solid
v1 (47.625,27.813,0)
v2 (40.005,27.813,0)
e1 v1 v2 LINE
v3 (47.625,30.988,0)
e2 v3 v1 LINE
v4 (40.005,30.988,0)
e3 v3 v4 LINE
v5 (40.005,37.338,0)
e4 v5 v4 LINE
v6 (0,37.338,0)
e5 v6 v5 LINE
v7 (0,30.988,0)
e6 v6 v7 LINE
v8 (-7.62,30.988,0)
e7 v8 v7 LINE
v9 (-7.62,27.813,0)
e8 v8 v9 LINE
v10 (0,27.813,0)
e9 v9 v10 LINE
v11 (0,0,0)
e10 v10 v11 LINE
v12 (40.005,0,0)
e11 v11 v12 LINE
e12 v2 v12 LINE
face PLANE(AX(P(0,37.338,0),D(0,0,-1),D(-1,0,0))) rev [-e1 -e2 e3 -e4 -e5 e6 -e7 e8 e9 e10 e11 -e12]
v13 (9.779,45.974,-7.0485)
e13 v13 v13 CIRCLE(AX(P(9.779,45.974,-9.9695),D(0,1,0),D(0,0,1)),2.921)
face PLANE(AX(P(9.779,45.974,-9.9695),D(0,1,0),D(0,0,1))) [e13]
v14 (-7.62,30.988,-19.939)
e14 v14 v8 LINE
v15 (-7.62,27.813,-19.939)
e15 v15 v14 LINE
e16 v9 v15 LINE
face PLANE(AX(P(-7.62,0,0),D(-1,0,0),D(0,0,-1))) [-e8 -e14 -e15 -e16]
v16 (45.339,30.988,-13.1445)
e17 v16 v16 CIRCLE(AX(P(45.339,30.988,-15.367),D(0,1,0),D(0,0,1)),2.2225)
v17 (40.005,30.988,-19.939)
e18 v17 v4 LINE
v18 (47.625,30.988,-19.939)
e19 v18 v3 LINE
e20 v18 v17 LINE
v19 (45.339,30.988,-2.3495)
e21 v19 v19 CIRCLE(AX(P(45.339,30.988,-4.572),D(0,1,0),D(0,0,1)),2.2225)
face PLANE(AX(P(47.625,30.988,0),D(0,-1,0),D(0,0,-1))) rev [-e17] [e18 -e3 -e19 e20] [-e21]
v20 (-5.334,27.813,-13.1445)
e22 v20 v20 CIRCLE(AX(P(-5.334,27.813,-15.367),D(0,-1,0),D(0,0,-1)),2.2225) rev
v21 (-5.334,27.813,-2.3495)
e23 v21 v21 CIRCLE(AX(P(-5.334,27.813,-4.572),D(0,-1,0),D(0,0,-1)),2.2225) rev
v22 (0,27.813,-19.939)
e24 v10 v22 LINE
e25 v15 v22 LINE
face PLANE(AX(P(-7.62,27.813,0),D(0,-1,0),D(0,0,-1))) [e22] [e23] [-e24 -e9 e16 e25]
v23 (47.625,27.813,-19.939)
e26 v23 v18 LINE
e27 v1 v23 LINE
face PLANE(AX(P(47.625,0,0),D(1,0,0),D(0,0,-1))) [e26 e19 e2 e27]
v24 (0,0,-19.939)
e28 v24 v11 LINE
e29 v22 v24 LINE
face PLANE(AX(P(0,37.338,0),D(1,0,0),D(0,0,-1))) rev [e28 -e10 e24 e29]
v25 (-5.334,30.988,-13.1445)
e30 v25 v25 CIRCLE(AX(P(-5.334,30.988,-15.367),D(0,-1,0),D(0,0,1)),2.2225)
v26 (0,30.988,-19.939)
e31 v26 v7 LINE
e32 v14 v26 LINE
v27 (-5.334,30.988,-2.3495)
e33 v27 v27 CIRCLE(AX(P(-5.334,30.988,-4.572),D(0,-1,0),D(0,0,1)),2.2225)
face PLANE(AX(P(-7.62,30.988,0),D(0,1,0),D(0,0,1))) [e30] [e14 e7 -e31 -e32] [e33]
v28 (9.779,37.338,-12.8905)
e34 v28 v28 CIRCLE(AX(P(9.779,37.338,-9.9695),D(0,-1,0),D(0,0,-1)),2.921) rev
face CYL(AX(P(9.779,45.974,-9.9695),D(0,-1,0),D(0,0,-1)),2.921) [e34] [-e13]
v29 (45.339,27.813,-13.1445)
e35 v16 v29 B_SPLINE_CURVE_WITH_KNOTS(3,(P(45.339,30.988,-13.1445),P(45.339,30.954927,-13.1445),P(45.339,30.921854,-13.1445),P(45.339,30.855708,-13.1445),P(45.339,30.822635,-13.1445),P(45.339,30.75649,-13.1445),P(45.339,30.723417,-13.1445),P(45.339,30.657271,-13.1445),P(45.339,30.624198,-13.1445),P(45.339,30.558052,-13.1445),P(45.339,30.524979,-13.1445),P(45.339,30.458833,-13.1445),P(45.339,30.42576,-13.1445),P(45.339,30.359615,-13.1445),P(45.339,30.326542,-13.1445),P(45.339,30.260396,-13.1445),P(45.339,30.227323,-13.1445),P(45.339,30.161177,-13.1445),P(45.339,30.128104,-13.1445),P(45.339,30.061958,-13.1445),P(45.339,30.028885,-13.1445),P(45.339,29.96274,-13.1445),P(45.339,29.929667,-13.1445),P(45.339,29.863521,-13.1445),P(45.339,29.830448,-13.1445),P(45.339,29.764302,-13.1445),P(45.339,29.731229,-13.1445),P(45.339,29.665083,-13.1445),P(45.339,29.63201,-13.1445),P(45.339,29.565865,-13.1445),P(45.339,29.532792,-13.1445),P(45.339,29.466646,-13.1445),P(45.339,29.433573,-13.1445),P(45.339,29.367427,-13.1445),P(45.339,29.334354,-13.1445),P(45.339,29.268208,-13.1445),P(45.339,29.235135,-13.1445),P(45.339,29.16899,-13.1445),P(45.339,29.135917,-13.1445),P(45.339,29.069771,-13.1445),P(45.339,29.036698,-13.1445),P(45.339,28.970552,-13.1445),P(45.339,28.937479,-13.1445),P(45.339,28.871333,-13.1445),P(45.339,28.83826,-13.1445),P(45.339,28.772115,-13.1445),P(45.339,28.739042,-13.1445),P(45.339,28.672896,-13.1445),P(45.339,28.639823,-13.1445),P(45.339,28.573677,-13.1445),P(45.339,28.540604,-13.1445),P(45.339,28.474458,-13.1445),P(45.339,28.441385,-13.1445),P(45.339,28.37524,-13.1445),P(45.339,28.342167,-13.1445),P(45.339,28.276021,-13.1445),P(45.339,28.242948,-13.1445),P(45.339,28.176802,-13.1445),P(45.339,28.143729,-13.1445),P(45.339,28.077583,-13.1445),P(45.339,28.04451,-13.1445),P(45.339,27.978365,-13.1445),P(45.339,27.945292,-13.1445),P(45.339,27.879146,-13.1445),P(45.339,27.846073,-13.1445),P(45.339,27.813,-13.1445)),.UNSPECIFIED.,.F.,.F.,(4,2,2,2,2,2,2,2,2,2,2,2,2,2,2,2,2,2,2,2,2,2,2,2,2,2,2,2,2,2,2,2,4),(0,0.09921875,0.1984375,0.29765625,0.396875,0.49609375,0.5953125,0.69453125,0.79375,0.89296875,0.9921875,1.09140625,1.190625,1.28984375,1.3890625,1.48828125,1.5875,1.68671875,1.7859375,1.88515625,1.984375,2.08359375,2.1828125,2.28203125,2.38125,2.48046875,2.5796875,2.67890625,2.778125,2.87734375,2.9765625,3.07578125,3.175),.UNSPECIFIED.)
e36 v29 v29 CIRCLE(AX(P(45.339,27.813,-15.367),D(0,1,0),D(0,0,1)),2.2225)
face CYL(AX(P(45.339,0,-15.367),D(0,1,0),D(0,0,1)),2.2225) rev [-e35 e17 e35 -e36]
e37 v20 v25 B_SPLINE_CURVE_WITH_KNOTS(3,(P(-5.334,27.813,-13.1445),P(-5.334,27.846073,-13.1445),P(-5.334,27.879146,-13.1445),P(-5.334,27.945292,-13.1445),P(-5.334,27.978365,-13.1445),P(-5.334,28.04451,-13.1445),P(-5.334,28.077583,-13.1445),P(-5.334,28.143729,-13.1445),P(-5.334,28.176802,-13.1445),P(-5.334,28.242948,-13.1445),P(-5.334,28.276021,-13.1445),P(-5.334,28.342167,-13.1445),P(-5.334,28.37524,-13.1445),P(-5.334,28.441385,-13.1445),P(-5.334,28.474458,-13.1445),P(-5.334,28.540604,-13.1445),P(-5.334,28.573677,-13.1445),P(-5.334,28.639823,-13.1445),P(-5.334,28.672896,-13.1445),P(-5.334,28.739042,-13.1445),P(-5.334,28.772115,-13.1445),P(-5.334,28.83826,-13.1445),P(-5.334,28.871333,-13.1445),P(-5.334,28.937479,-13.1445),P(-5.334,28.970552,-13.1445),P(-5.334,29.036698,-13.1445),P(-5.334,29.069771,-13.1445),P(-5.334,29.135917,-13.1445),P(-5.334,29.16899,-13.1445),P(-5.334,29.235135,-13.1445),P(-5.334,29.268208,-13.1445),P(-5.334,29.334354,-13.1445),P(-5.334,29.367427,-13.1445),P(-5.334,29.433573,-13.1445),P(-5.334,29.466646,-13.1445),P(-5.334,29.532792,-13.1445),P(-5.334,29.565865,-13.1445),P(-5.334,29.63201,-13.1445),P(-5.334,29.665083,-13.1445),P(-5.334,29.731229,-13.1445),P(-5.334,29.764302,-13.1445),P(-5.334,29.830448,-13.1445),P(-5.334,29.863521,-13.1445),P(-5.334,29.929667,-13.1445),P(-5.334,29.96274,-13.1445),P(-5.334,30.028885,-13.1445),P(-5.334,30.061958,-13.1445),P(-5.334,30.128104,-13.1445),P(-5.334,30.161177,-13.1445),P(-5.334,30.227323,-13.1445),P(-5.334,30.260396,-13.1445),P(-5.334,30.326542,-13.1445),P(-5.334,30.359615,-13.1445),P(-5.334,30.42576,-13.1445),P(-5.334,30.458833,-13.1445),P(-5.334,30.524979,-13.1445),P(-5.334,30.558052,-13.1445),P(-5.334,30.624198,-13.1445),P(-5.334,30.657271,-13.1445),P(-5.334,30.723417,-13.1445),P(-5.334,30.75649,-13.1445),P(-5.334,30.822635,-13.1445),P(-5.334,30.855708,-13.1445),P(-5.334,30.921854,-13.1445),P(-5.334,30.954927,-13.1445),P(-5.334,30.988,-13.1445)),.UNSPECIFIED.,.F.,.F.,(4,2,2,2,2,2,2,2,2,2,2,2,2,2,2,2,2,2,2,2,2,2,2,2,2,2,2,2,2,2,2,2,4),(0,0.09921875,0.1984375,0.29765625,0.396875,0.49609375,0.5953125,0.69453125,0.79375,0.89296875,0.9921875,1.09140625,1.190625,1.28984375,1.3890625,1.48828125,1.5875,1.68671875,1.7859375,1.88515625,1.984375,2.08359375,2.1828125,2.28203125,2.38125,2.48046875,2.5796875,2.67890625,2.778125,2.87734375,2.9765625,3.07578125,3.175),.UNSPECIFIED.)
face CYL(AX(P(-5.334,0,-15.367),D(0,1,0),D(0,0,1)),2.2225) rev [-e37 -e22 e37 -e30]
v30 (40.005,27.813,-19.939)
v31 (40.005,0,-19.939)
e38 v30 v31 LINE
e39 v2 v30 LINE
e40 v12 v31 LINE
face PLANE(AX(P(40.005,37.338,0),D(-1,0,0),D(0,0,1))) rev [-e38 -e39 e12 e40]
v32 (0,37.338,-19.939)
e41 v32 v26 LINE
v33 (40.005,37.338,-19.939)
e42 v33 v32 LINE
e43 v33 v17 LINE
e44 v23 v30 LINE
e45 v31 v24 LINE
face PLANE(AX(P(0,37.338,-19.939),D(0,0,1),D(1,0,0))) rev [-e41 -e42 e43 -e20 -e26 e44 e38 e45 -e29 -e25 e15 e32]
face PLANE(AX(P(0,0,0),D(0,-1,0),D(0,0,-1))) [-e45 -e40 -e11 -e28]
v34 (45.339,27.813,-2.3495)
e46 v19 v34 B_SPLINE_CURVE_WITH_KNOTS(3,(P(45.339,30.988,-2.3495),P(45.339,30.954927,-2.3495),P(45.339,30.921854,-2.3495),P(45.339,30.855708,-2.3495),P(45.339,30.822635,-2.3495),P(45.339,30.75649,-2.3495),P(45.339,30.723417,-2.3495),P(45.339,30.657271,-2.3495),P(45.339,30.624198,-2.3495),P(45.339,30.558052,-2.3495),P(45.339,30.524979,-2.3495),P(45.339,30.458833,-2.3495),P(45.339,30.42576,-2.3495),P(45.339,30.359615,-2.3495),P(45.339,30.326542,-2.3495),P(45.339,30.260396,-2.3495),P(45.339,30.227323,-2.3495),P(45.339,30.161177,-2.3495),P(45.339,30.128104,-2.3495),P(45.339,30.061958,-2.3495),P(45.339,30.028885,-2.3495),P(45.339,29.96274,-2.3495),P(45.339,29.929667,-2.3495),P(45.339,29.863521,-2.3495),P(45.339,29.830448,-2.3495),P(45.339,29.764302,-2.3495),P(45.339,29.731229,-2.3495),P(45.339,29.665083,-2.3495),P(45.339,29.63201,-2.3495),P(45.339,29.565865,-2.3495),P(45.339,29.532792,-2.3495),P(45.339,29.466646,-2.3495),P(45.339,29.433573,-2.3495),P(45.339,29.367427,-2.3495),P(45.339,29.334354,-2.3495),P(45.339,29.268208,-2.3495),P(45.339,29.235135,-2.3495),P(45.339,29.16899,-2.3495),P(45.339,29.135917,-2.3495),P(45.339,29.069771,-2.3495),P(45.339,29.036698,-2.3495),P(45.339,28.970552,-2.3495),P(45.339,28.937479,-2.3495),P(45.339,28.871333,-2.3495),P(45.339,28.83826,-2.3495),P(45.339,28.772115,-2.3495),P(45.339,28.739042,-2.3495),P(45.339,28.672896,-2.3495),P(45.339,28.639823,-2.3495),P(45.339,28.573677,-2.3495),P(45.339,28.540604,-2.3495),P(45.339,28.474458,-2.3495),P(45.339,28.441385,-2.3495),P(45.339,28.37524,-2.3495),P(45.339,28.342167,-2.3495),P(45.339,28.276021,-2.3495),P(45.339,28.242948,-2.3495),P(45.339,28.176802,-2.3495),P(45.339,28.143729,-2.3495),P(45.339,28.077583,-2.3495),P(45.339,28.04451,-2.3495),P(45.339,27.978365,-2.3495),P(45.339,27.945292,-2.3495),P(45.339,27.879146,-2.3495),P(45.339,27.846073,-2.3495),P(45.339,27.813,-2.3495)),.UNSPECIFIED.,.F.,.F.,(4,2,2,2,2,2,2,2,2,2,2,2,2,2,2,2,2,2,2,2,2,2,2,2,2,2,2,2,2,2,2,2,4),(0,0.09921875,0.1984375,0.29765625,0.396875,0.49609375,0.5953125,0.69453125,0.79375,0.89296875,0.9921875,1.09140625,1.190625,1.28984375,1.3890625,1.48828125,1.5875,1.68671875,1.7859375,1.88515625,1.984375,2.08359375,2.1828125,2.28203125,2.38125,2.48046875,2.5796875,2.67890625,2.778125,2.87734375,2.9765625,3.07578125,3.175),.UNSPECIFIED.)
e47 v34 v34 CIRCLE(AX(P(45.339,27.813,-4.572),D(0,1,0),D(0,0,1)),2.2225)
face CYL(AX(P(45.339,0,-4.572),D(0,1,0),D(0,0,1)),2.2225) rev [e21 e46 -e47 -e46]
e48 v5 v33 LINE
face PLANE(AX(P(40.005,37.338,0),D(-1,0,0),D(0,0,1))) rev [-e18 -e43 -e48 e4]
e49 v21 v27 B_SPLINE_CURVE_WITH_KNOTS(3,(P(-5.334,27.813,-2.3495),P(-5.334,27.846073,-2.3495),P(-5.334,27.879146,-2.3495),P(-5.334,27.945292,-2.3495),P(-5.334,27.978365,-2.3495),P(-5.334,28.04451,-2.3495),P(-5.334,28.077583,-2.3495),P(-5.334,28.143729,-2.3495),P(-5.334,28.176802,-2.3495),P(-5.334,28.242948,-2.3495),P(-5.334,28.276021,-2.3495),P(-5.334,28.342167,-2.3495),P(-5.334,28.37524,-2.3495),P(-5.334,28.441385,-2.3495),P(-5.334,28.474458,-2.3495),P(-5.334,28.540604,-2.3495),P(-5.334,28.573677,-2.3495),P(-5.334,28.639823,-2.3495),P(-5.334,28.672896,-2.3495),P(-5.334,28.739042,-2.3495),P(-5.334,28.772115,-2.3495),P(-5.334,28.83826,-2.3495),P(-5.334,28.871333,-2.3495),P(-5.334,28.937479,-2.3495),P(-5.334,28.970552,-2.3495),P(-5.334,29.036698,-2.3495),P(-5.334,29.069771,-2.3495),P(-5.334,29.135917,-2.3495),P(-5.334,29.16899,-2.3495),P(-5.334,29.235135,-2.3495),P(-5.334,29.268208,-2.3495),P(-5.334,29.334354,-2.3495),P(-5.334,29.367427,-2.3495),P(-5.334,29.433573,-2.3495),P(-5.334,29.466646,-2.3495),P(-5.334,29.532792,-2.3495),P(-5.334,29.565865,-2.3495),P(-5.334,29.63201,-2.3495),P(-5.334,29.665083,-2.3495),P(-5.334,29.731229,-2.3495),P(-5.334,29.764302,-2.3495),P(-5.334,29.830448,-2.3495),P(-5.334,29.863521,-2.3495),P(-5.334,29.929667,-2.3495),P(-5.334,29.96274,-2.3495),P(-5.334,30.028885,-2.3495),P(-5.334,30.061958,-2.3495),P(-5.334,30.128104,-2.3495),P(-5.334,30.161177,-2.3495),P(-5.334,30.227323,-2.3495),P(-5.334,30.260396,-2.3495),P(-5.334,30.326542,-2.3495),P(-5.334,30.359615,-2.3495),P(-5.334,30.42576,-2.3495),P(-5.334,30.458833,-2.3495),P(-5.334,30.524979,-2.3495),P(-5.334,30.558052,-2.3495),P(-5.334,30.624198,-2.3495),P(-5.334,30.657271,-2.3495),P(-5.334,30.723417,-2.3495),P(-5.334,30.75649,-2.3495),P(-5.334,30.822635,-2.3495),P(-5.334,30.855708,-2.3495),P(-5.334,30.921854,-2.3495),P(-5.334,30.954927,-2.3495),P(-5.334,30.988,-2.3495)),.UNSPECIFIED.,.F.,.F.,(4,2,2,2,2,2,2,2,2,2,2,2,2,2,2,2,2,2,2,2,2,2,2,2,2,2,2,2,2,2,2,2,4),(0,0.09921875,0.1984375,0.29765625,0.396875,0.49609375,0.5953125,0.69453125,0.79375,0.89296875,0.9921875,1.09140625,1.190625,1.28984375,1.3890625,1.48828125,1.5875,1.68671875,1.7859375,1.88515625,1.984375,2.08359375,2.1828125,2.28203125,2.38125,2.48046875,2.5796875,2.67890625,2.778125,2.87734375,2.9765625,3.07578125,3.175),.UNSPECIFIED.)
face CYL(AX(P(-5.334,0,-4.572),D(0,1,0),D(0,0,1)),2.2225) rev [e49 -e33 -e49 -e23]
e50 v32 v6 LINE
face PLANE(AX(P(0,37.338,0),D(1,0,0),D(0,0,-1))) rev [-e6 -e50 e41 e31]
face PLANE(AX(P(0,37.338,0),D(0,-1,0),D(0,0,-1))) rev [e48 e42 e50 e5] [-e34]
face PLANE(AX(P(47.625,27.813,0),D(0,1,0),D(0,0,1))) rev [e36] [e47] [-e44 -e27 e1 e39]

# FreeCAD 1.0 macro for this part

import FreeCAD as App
import Part
import Sketcher
from FreeCAD import Vector
Q = App.Units.Quantity


def add_polygon(sketch, points):
    """Adds a closed chain of lines whose ends are joined by coincident constraints."""
    first, n = sketch.GeometryCount, len(points)
    for a, b in zip(points, points[1:] + points[:1]):
        sketch.addGeometry(Part.LineSegment(App.Vector(*a, 0), App.Vector(*b, 0)), False)
    for i in range(n):
        sketch.addConstraint(Sketcher.Constraint("Coincident", first + i, 2, first + (i + 1) % n, 1))

doc = App.newDocument("Part")
body = doc.addObject("PartDesign::Body", "Body")

sketch1 = doc.addObject("Sketcher::SketchObject", "Sketch")
body.addObject(sketch1)
sketch1.AttachmentSupport = (doc.XZ_Plane, [""])
sketch1.MapMode = "FlatFace"
add_polygon(sketch1, [(0, -20), (0, 0), (40, 0), (40, -20)])
sketch1.addConstraint([
    Sketcher.Constraint("Vertical", 0),
    Sketcher.Constraint("Horizontal", 1),
    Sketcher.Constraint("Vertical", 2),
    Sketcher.Constraint("Horizontal", 3),
    Sketcher.Constraint("Coincident", 0, 2, -1, 1),
    Sketcher.Constraint("DistanceX", 1, 1, 1, 2, Q("1.575 in")),
    Sketcher.Constraint("DistanceY", 0, 1, 0, 2, Q("0.785 in")),
])
pad1 = doc.addObject("PartDesign::Pad", "Pad")
body.addObject(pad1)
pad1.Profile = sketch1
pad1.Length = Q("1.47 in")
pad1.Reversed = True

sketch2 = doc.addObject("Sketcher::SketchObject", "Sketch001")
body.addObject(sketch2)
sketch2.AttachmentSupport = (doc.YZ_Plane, [""])
sketch2.MapMode = "FlatFace"
sketch2.AttachmentOffset = App.Placement(Vector(0, 0, 1.575 * 25.4), App.Rotation())
add_polygon(sketch2, [(31, 0), (27.8, 0), (27.8, -19.9), (31, -19.9)])
sketch2.addConstraint([
    Sketcher.Constraint("Horizontal", 0),
    Sketcher.Constraint("Vertical", 1),
    Sketcher.Constraint("Horizontal", 2),
    Sketcher.Constraint("Vertical", 3),
    Sketcher.Constraint("PointOnObject", 0, 2, -1),
    Sketcher.Constraint("DistanceX", 0, 2, 0, 1, Q("0.125 in")),
    Sketcher.Constraint("DistanceY", 1, 2, 1, 1, Q("0.785 in")),
    Sketcher.Constraint("DistanceX", -1, 1, 2, 2, Q("1.22 in")),
])
pad2 = doc.addObject("PartDesign::Pad", "Pad001")
body.addObject(pad2)
pad2.Profile = sketch2
pad2.Length = Q("0.3 in")

sketch3 = doc.addObject("Sketcher::SketchObject", "Sketch002")
body.addObject(sketch3)
sketch3.AttachmentSupport = (doc.XZ_Plane, [""])
sketch3.MapMode = "FlatFace"
sketch3.AttachmentOffset = App.Placement(Vector(0, 0, -1.22 * 25.4), App.Rotation())
sketch3.addGeometry([
    Part.Circle(Vector(45.3, -15.4, 0), Vector(0, 0, 1), 2.2),
    Part.Circle(Vector(45.3, -4.6, 0), Vector(0, 0, 1), 2.2),
], False)
sketch3.addConstraint([
    Sketcher.Constraint("Equal", 0, 1),
    Sketcher.Constraint("Vertical", 0, 3, 1, 3),
    Sketcher.Constraint("Diameter", 0, Q("0.175 in")),
    Sketcher.Constraint("DistanceY", 1, 3, -1, 1, Q("0.18 in")),
    Sketcher.Constraint("DistanceX", -1, 1, 0, 3, Q("1.785 in")),
    Sketcher.Constraint("DistanceY", 0, 3, -1, 1, Q("0.605 in")),
])
pocket1 = doc.addObject("PartDesign::Pocket", "Pocket")
body.addObject(pocket1)
pocket1.Profile = sketch3
pocket1.Type = "ThroughAll"
pocket1.Reversed = True
doc.recompute()

datumplane = doc.addObject("PartDesign::Plane", "DatumPlane")
body.addObject(datumplane)
datumplane.AttachmentSupport = (doc.YZ_Plane, [""])
datumplane.MapMode = "FlatFace"
datumplane.AttachmentOffset = App.Placement(Vector(0, 0, 0.7875 * 25.4), App.Rotation())
mirrored = doc.addObject("PartDesign::Mirrored", "Mirrored")
body.addObject(mirrored)
mirrored.Originals = [pad2, pocket1]
mirrored.MirrorPlane = (datumplane, [""])
body.Tip = mirrored

sketch4 = doc.addObject("Sketcher::SketchObject", "Sketch003")
body.addObject(sketch4)
sketch4.AttachmentSupport = (doc.XZ_Plane, [""])
sketch4.MapMode = "FlatFace"
sketch4.AttachmentOffset = App.Placement(Vector(0, 0, -1.47 * 25.4), App.Rotation())
sketch4.addGeometry(Part.Circle(Vector(9.8, -10, 0), Vector(0, 0, 1), 2.9), False)
sketch4.addConstraint([
    Sketcher.Constraint("Diameter", 0, Q("0.23 in")),
    Sketcher.Constraint("DistanceX", -1, 1, 0, 3, Q("0.385 in")),
    Sketcher.Constraint("DistanceY", 0, 3, -1, 1, Q("0.3925 in")),
])
pad3 = doc.addObject("PartDesign::Pad", "Pad002")
body.addObject(pad3)
pad3.Profile = sketch4
pad3.Length = Q("0.34 in")
pad3.Reversed = True

doc.recompute()
